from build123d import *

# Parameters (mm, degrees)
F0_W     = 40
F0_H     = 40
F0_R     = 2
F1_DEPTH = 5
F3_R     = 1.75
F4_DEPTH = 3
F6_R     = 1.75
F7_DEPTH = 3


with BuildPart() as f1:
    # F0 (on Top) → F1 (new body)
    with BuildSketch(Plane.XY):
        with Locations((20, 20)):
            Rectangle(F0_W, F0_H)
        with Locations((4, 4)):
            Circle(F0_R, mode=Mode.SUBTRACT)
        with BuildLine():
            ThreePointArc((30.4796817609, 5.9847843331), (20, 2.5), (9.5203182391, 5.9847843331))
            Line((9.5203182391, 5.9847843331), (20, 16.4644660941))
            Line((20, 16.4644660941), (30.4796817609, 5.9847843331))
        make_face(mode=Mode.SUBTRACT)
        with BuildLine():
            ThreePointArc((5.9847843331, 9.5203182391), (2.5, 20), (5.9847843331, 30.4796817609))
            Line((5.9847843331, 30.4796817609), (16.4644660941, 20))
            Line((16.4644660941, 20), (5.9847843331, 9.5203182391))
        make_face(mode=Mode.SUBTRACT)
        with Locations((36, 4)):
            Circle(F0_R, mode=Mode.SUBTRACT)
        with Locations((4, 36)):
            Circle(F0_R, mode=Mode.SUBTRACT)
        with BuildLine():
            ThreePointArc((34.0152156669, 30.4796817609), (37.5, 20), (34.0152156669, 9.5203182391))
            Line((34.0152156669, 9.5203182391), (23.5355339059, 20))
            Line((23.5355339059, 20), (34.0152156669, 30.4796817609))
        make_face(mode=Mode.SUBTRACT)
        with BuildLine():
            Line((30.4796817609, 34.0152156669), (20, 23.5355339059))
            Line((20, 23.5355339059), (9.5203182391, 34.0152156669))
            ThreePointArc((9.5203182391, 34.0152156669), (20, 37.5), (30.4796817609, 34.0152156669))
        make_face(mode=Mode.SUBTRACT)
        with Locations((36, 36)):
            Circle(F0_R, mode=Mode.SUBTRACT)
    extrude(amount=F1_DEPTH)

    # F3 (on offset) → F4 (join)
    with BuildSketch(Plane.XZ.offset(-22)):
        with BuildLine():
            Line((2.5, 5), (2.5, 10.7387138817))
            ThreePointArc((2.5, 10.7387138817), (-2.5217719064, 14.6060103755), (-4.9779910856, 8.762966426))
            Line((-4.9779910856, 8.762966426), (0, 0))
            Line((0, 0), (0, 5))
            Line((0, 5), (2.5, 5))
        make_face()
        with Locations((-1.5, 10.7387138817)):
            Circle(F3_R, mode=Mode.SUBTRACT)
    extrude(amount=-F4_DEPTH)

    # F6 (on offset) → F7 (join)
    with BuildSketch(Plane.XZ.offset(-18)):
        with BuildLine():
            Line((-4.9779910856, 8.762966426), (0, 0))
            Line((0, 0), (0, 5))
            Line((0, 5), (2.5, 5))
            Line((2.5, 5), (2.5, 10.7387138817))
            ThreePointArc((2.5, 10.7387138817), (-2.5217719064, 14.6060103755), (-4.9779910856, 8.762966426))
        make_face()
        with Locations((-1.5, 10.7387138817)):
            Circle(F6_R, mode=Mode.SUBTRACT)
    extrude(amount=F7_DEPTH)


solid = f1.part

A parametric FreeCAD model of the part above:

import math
import FreeCAD as App
import Part
import Sketcher
from FreeCAD import Vector
Q = App.Units.Quantity


def add_polygon(sketch, points):
    """Adds a closed chain of lines whose ends are joined by coincident constraints."""
    first, n = sketch.GeometryCount, len(points)
    for a, b in zip(points, points[1:] + points[:1]):
        sketch.addGeometry(Part.LineSegment(App.Vector(*a, 0), App.Vector(*b, 0)), False)
    for i in range(n):
        sketch.addConstraint(Sketcher.Constraint("Coincident", first + i, 2, first + (i + 1) % n, 1))

doc = App.newDocument("Part")
params = doc.addObject("Spreadsheet::Sheet", "Params")
for row, (alias, value) in enumerate([
    ("sketch1_diameter", "4 mm"),
    ("sketch1_radius", "17.5 mm"),
    ("sketch1_width", "40 mm"),
    ("pad1_length", "5 mm"),
    ("sketch2_radius", "4 mm"),
    ("sketch2_diameter", "3.5 mm"),
    ("sketch2_height", "5 mm"),
    ("sketch2_width", "2.5 mm"),
    ("pad2_length", "3 mm"),
    ("sketch3_radius", "4 mm"),
    ("sketch3_diameter", "3.5 mm"),
    ("sketch3_height", "5 mm"),
    ("sketch3_width", "2.5 mm"),
    ("pad3_length", "3 mm"),
], start=1):
    params.set(f"A{row}", alias)
    params.set(f"B{row}", "=" + value)
    params.setAlias(f"B{row}", alias)

body = doc.addObject("PartDesign::Body", "Body")

# Sketch on XY plane
sketch1 = body.newObject("Sketcher::SketchObject", "Sketch")
sketch1.AttachmentSupport = (doc.getObject("XY_Plane"), [""])
sketch1.MapMode = "FlatFace"
add_polygon(sketch1, [(0, 40), (0, 0), (40, 0), (40, 40)])  # lines 0-3
sketch1.addGeometry(Part.Circle(Vector(4, 4, 0), Vector(0, 0, 1), 2), False)  # 4
sketch1.addGeometry(Part.LineSegment(Vector(20, 16.5, 0), Vector(30.5, 6, 0)), False)  # 5
sketch1.addGeometry(Part.ArcOfCircle(Part.Circle(Vector(20, 20, 0), Vector(0, 0, 1), 17.5), math.radians(-127), math.radians(-53)), False)  # 6
sketch1.addGeometry(Part.LineSegment(Vector(9.5, 6, 0), Vector(20, 16.5, 0)), False)  # 7
sketch1.addGeometry(Part.Circle(Vector(36, 4, 0), Vector(0, 0, 1), 2), False)  # 8
sketch1.addGeometry(Part.LineSegment(Vector(16.5, 20, 0), Vector(6, 9.5, 0)), False)  # 9
sketch1.addGeometry(Part.ArcOfCircle(Part.Circle(Vector(20, 20, 0), Vector(0, 0, 1), 17.5), math.radians(143), math.radians(217)), False)  # 10
sketch1.addGeometry(Part.LineSegment(Vector(6, 30.5, 0), Vector(16.5, 20, 0)), False)  # 11
sketch1.addGeometry(Part.Circle(Vector(4, 36, 0), Vector(0, 0, 1), 2), False)  # 12
sketch1.addGeometry(Part.LineSegment(Vector(23.5, 20, 0), Vector(34, 30.5, 0)), False)  # 13
sketch1.addGeometry(Part.ArcOfCircle(Part.Circle(Vector(20, 20, 0), Vector(0, 0, 1), 17.5), math.radians(-37), math.radians(37)), False)  # 14
sketch1.addGeometry(Part.LineSegment(Vector(34, 9.5, 0), Vector(23.5, 20, 0)), False)  # 15
sketch1.addGeometry(Part.ArcOfCircle(Part.Circle(Vector(20, 20, 0), Vector(0, 0, 1), 17.5), math.radians(53), math.radians(127)), False)  # 16
sketch1.addGeometry(Part.LineSegment(Vector(30.5, 34, 0), Vector(20, 23.5, 0)), False)  # 17
sketch1.addGeometry(Part.LineSegment(Vector(20, 23.5, 0), Vector(9.5, 34, 0)), False)  # 18
sketch1.addGeometry(Part.Circle(Vector(36, 36, 0), Vector(0, 0, 1), 2), False)  # 19
sketch1.addConstraint([
    Sketcher.Constraint("Coincident", 5, 2, 6, 2),
    Sketcher.Constraint("Coincident", 6, 1, 7, 1),
    Sketcher.Constraint("Coincident", 7, 2, 5, 1),
    Sketcher.Constraint("Coincident", 9, 2, 10, 2),
    Sketcher.Constraint("Coincident", 10, 1, 11, 1),
    Sketcher.Constraint("Coincident", 11, 2, 9, 1),
    Sketcher.Constraint("Coincident", 13, 2, 14, 2),
    Sketcher.Constraint("Coincident", 14, 1, 15, 1),
    Sketcher.Constraint("Coincident", 15, 2, 13, 1),
    Sketcher.Constraint("Coincident", 16, 1, 17, 1),
    Sketcher.Constraint("Coincident", 17, 2, 18, 1),
    Sketcher.Constraint("Coincident", 18, 2, 16, 2),
    Sketcher.Constraint("Vertical", 0),
    Sketcher.Constraint("Horizontal", 1),
    Sketcher.Constraint("Vertical", 2),
    Sketcher.Constraint("Horizontal", 3),
    Sketcher.Constraint("Coincident", 0, 2, -1, 1),
    Sketcher.Constraint("Coincident", 10, 3, 6, 3),
    Sketcher.Constraint("Coincident", 14, 3, 6, 3),
    Sketcher.Constraint("Coincident", 16, 3, 6, 3),
    Sketcher.Constraint("Equal", 4, 8),
    Sketcher.Constraint("Equal", 6, 10),
    Sketcher.Constraint("Equal", 8, 12),
    Sketcher.Constraint("Equal", 10, 14),
    Sketcher.Constraint("Equal", 14, 16),
    Sketcher.Constraint("Equal", 12, 19),
    Sketcher.Constraint("Perpendicular", 5, 7),
    Sketcher.Constraint("Parallel", 7, 9),
    Sketcher.Constraint("Perpendicular", 9, 11),
    Sketcher.Constraint("Perpendicular", 11, 13),
    Sketcher.Constraint("Perpendicular", 13, 15),
    Sketcher.Constraint("Perpendicular", 15, 17),
    Sketcher.Constraint("Perpendicular", 17, 18),
    Sketcher.Constraint("Horizontal", 4, 3, 8, 3),
    Sketcher.Constraint("Horizontal", 12, 3, 19, 3),
    Sketcher.Constraint("Horizontal", 5, 2, 6, 1),
    Sketcher.Constraint("Horizontal", 16, 3, 11, 2),
    Sketcher.Constraint("Horizontal", 10, 1, 13, 2),
    Sketcher.Constraint("Horizontal", 9, 2, 14, 1),
    Sketcher.Constraint("Horizontal", 11, 2, 15, 2),
    Sketcher.Constraint("Horizontal", 16, 1, 18, 2),
    Sketcher.Constraint("Vertical", 4, 3, 12, 3),
    Sketcher.Constraint("Vertical", 8, 3, 19, 3),
    Sketcher.Constraint("Vertical", 5, 2, 16, 1),
    Sketcher.Constraint("Equal", 3, 0),
    Sketcher.Constraint("Equal", 7, 9),
    Sketcher.Constraint("Diameter", 4, Q("4 mm")),
    Sketcher.Constraint("Radius", 6, Q("17.5 mm")),
    Sketcher.Constraint("DistanceX", 1, 1, 1, 2, Q("40 mm")),
    Sketcher.Constraint("DistanceX", -1, 1, 4, 3, Q("4 mm")),
    Sketcher.Constraint("DistanceY", -1, 1, 4, 3, Q("4 mm")),
    Sketcher.Constraint("DistanceX", -1, 1, 6, 3, Q("20 mm")),
    Sketcher.Constraint("DistanceY", -1, 1, 6, 3, Q("20 mm")),
    Sketcher.Constraint("DistanceX", -1, 1, 8, 3, Q("36 mm")),
    Sketcher.Constraint("DistanceY", -1, 1, 12, 3, Q("36 mm")),
    Sketcher.Constraint("Distance", 5, Q("14.820508 mm")),
])
sketch1.setExpression("Constraints[50]", "Params.sketch1_diameter")
sketch1.setExpression("Constraints[51]", "Params.sketch1_radius")
sketch1.setExpression("Constraints[52]", "Params.sketch1_width")
pad1 = body.newObject("PartDesign::Pad", "Pad")
pad1.Profile = sketch1
pad1.setExpression("Length", "Params.pad1_length")

# Sketch on XZ plane
sketch2 = body.newObject("Sketcher::SketchObject", "Sketch001")
sketch2.AttachmentSupport = (doc.getObject("XZ_Plane"), [""])
sketch2.MapMode = "FlatFace"
sketch2.AttachmentOffset = App.Placement(Vector(0, 0, -22), App.Rotation())
sketch2.addGeometry([
    Part.LineSegment(Vector(2.5, 5, 0), Vector(2.5, 10.7, 0)),  # 0
    Part.ArcOfCircle(Part.Circle(Vector(-1.5, 10.7, 0), Vector(0, 0, 1), 4), math.radians(0), math.radians(210)),  # 1
    Part.LineSegment(Vector(-5, 8.8, 0), Vector(0, 0, 0)),  # 2
    Part.LineSegment(Vector(0, 0, 0), Vector(0, 5, 0)),  # 3
    Part.LineSegment(Vector(0, 5, 0), Vector(2.5, 5, 0)),  # 4
    Part.Circle(Vector(-1.5, 10.7, 0), Vector(0, 0, 1), 1.8),  # 5
], False)
sketch2.addConstraint([
    Sketcher.Constraint("Tangent", 0, 2, 1, 1),
    Sketcher.Constraint("Tangent", 1, 2, 2, 1),
    Sketcher.Constraint("Coincident", 2, 2, 3, 1),
    Sketcher.Constraint("Coincident", 3, 2, 4, 1),
    Sketcher.Constraint("Coincident", 4, 2, 0, 1),
    Sketcher.Constraint("Vertical", 0),
    Sketcher.Constraint("Vertical", 3),
    Sketcher.Constraint("Horizontal", 4),
    Sketcher.Constraint("Coincident", 2, 2, -1, 1),
    Sketcher.Constraint("Coincident", 5, 3, 1, 3),
    Sketcher.Constraint("Radius", 1, Q("4 mm")),
    Sketcher.Constraint("Diameter", 5, Q("3.5 mm")),
    Sketcher.Constraint("DistanceY", 3, 1, 3, 2, Q("5 mm")),
    Sketcher.Constraint("DistanceX", 4, 1, 4, 2, Q("2.5 mm")),
    Sketcher.Constraint("DistanceY", 0, 1, 0, 2, Q("5.738714 mm")),
])
sketch2.setExpression("Constraints[10]", "Params.sketch2_radius")
sketch2.setExpression("Constraints[11]", "Params.sketch2_diameter")
sketch2.setExpression("Constraints[12]", "Params.sketch2_height")
sketch2.setExpression("Constraints[13]", "Params.sketch2_width")
pad2 = body.newObject("PartDesign::Pad", "Pad001")
pad2.Profile = sketch2
pad2.setExpression("Length", "Params.pad2_length")
pad2.Reversed = True

# Sketch on XZ plane
sketch3 = body.newObject("Sketcher::SketchObject", "Sketch002")
sketch3.AttachmentSupport = (doc.getObject("XZ_Plane"), [""])
sketch3.MapMode = "FlatFace"
sketch3.AttachmentOffset = App.Placement(Vector(0, 0, -18), App.Rotation())
sketch3.addGeometry([
    Part.LineSegment(Vector(-5, 8.8, 0), Vector(0, 0, 0)),  # 0
    Part.LineSegment(Vector(0, 0, 0), Vector(0, 5, 0)),  # 1
    Part.LineSegment(Vector(0, 5, 0), Vector(2.5, 5, 0)),  # 2
    Part.LineSegment(Vector(2.5, 5, 0), Vector(2.5, 10.7, 0)),  # 3
    Part.ArcOfCircle(Part.Circle(Vector(-1.5, 10.7, 0), Vector(0, 0, 1), 4), math.radians(0), math.radians(210)),  # 4
    Part.Circle(Vector(-1.5, 10.7, 0), Vector(0, 0, 1), 1.8),  # 5
], False)
sketch3.addConstraint([
    Sketcher.Constraint("Coincident", 0, 2, 1, 1),
    Sketcher.Constraint("Coincident", 1, 2, 2, 1),
    Sketcher.Constraint("Coincident", 2, 2, 3, 1),
    Sketcher.Constraint("Tangent", 3, 2, 4, 1),
    Sketcher.Constraint("Tangent", 4, 2, 0, 1),
    Sketcher.Constraint("Vertical", 1),
    Sketcher.Constraint("Horizontal", 2),
    Sketcher.Constraint("Vertical", 3),
    Sketcher.Constraint("Coincident", 0, 2, -1, 1),
    Sketcher.Constraint("Coincident", 5, 3, 4, 3),
    Sketcher.Constraint("Radius", 4, Q("4 mm")),
    Sketcher.Constraint("Diameter", 5, Q("3.5 mm")),
    Sketcher.Constraint("DistanceY", 1, 1, 1, 2, Q("5 mm")),
    Sketcher.Constraint("DistanceX", 2, 1, 2, 2, Q("2.5 mm")),
    Sketcher.Constraint("DistanceY", 3, 1, 3, 2, Q("5.738714 mm")),
])
sketch3.setExpression("Constraints[10]", "Params.sketch3_radius")
sketch3.setExpression("Constraints[11]", "Params.sketch3_diameter")
sketch3.setExpression("Constraints[12]", "Params.sketch3_height")
sketch3.setExpression("Constraints[13]", "Params.sketch3_width")
pad3 = body.newObject("PartDesign::Pad", "Pad002")
pad3.Profile = sketch3
pad3.setExpression("Length", "Params.pad3_length")

doc.recompute()
